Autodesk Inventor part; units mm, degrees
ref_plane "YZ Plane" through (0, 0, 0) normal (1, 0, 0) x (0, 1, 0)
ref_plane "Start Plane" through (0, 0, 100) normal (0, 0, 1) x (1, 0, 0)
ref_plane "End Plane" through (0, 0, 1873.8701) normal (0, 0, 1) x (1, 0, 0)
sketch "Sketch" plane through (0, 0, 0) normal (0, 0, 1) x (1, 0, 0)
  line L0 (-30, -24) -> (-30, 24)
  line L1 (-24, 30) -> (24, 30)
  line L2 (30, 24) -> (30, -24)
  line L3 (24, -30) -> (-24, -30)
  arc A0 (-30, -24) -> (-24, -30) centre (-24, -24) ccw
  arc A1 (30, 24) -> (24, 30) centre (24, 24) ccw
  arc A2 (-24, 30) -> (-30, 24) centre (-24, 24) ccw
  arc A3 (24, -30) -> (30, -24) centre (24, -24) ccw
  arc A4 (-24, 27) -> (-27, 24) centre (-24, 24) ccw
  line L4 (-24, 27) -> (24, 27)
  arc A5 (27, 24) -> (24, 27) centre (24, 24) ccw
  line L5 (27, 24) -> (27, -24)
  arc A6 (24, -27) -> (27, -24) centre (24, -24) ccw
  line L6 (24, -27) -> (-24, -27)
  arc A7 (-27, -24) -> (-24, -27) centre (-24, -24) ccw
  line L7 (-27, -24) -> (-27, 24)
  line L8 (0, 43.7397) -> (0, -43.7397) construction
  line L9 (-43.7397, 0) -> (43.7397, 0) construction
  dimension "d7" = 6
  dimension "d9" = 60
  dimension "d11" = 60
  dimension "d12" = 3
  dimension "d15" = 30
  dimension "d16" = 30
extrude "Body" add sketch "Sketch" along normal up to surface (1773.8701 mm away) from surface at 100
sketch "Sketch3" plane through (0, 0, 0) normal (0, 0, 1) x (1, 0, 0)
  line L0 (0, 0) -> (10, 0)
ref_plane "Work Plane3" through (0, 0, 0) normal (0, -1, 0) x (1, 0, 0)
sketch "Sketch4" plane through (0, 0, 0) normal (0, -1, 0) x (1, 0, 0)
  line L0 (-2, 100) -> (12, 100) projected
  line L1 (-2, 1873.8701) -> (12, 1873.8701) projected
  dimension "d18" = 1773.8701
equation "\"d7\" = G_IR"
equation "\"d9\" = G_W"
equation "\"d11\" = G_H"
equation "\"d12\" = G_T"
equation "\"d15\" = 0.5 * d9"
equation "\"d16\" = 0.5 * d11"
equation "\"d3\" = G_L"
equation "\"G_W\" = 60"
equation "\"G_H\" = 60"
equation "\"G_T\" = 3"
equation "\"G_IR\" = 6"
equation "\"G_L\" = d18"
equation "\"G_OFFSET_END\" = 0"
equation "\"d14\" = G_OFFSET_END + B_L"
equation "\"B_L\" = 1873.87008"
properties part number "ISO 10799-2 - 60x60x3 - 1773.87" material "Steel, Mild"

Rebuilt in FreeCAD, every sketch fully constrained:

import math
import FreeCAD as App
import Part
import Sketcher
from FreeCAD import Vector

doc = App.newDocument("Part")
params = doc.addObject("Spreadsheet::Sheet", "Params")
for row, (alias, value) in enumerate([
    ("sketch1_radius", "6 mm"),
    ("sketch1_radius2", "3 mm"),
    ("pad1_length", "1773.8701 mm"),
], start=1):
    params.set(f"A{row}", alias)
    params.set(f"B{row}", "=" + value)
    params.setAlias(f"B{row}", alias)

body = doc.addObject("PartDesign::Body", "Body")

# Sketch on XY plane
sketch1 = body.newObject("Sketcher::SketchObject", "Sketch")
sketch1.AttachmentSupport = (doc.getObject("XY_Plane"), [""])
sketch1.MapMode = "FlatFace"
sketch1.AttachmentOffset = App.Placement(Vector(0, 0, 100), App.Rotation())
sketch1.addGeometry(Part.LineSegment(Vector(-30, 24, 0), Vector(-30, -24, 0)), False)
sketch1.addGeometry(Part.ArcOfCircle(Part.Circle(Vector(-24, -24, 0), Vector(0, 0, 1), 6), math.radians(180), math.radians(270)), False)
sketch1.addGeometry(Part.LineSegment(Vector(-24, -30, 0), Vector(24, -30, 0)), False)
sketch1.addGeometry(Part.ArcOfCircle(Part.Circle(Vector(24, -24, 0), Vector(0, 0, 1), 6), math.radians(-90), math.radians(0)), False)
sketch1.addGeometry(Part.LineSegment(Vector(30, -24, 0), Vector(30, 24, 0)), False)
sketch1.addGeometry(Part.ArcOfCircle(Part.Circle(Vector(24, 24, 0), Vector(0, 0, 1), 6), math.radians(0), math.radians(90)), False)
sketch1.addGeometry(Part.LineSegment(Vector(24, 30, 0), Vector(-24, 30, 0)), False)
sketch1.addGeometry(Part.ArcOfCircle(Part.Circle(Vector(-24, 24, 0), Vector(0, 0, 1), 6), math.radians(90), math.radians(180)), False)
sketch1.addGeometry(Part.ArcOfCircle(Part.Circle(Vector(-24, 24, 0), Vector(0, 0, 1), 3), math.radians(90), math.radians(180)), False)
sketch1.addGeometry(Part.LineSegment(Vector(-24, 27, 0), Vector(24, 27, 0)), False)
sketch1.addGeometry(Part.ArcOfCircle(Part.Circle(Vector(24, 24, 0), Vector(0, 0, 1), 3), math.radians(0), math.radians(90)), False)
sketch1.addGeometry(Part.LineSegment(Vector(27, 24, 0), Vector(27, -24, 0)), False)
sketch1.addGeometry(Part.ArcOfCircle(Part.Circle(Vector(24, -24, 0), Vector(0, 0, 1), 3), math.radians(-90), math.radians(0)), False)
sketch1.addGeometry(Part.LineSegment(Vector(24, -27, 0), Vector(-24, -27, 0)), False)
sketch1.addGeometry(Part.ArcOfCircle(Part.Circle(Vector(-24, -24, 0), Vector(0, 0, 1), 3), math.radians(180), math.radians(270)), False)
sketch1.addGeometry(Part.LineSegment(Vector(-27, -24, 0), Vector(-27, 24, 0)), False)
sketch1.addConstraint(Sketcher.Constraint("Tangent", 0, 2, 1, 1))
sketch1.addConstraint(Sketcher.Constraint("Tangent", 1, 2, 2, 1))
sketch1.addConstraint(Sketcher.Constraint("Tangent", 2, 2, 3, 1))
sketch1.addConstraint(Sketcher.Constraint("Tangent", 3, 2, 4, 1))
sketch1.addConstraint(Sketcher.Constraint("Tangent", 4, 2, 5, 1))
sketch1.addConstraint(Sketcher.Constraint("Tangent", 5, 2, 6, 1))
sketch1.addConstraint(Sketcher.Constraint("Tangent", 6, 2, 7, 1))
sketch1.addConstraint(Sketcher.Constraint("Tangent", 7, 2, 0, 1))
sketch1.addConstraint(Sketcher.Constraint("Tangent", 8, 1, 9, 1))
sketch1.addConstraint(Sketcher.Constraint("Tangent", 9, 2, 10, 2))
sketch1.addConstraint(Sketcher.Constraint("Tangent", 10, 1, 11, 1))
sketch1.addConstraint(Sketcher.Constraint("Tangent", 11, 2, 12, 2))
sketch1.addConstraint(Sketcher.Constraint("Tangent", 12, 1, 13, 1))
sketch1.addConstraint(Sketcher.Constraint("Tangent", 13, 2, 14, 2))
sketch1.addConstraint(Sketcher.Constraint("Tangent", 14, 1, 15, 1))
sketch1.addConstraint(Sketcher.Constraint("Tangent", 15, 2, 8, 2))
sketch1.addConstraint(Sketcher.Constraint("Vertical", 0))
sketch1.addConstraint(Sketcher.Constraint("Horizontal", 2))
sketch1.addConstraint(Sketcher.Constraint("Vertical", 4))
sketch1.addConstraint(Sketcher.Constraint("Horizontal", 6))
sketch1.addConstraint(Sketcher.Constraint("Horizontal", 9))
sketch1.addConstraint(Sketcher.Constraint("Vertical", 11))
sketch1.addConstraint(Sketcher.Constraint("Horizontal", 13))
sketch1.addConstraint(Sketcher.Constraint("Vertical", 15))
sketch1.addConstraint(Sketcher.Constraint("Coincident", 8, 3, 7, 3))
sketch1.addConstraint(Sketcher.Constraint("Coincident", 10, 3, 5, 3))
sketch1.addConstraint(Sketcher.Constraint("Coincident", 12, 3, 3, 3))
sketch1.addConstraint(Sketcher.Constraint("Equal", 1, 3))
sketch1.addConstraint(Sketcher.Constraint("Equal", 3, 5))
sketch1.addConstraint(Sketcher.Constraint("Equal", 5, 7))
sketch1.addConstraint(Sketcher.Constraint("Equal", 12, 14))
sketch1.addConstraint(Sketcher.Constraint("Symmetric", 1, 3, 5, 3, -1, 1))
sketch1.addConstraint(Sketcher.Constraint("Equal", 13, 0))
sketch1.addConstraint(Sketcher.Constraint("Radius", 1, 6.0))
sketch1.addConstraint(Sketcher.Constraint("Radius", 8, 3.0))
sketch1.addConstraint(Sketcher.Constraint("DistanceX", 0, 2, -1, 1, 30.0))
sketch1.setExpression("Constraints[33]", "Params.sketch1_radius")
sketch1.setExpression("Constraints[34]", "Params.sketch1_radius2")
pad1 = body.newObject("PartDesign::Pad", "Pad")
pad1.Profile = sketch1
pad1.setExpression("Length", "Params.pad1_length")

doc.recompute()
